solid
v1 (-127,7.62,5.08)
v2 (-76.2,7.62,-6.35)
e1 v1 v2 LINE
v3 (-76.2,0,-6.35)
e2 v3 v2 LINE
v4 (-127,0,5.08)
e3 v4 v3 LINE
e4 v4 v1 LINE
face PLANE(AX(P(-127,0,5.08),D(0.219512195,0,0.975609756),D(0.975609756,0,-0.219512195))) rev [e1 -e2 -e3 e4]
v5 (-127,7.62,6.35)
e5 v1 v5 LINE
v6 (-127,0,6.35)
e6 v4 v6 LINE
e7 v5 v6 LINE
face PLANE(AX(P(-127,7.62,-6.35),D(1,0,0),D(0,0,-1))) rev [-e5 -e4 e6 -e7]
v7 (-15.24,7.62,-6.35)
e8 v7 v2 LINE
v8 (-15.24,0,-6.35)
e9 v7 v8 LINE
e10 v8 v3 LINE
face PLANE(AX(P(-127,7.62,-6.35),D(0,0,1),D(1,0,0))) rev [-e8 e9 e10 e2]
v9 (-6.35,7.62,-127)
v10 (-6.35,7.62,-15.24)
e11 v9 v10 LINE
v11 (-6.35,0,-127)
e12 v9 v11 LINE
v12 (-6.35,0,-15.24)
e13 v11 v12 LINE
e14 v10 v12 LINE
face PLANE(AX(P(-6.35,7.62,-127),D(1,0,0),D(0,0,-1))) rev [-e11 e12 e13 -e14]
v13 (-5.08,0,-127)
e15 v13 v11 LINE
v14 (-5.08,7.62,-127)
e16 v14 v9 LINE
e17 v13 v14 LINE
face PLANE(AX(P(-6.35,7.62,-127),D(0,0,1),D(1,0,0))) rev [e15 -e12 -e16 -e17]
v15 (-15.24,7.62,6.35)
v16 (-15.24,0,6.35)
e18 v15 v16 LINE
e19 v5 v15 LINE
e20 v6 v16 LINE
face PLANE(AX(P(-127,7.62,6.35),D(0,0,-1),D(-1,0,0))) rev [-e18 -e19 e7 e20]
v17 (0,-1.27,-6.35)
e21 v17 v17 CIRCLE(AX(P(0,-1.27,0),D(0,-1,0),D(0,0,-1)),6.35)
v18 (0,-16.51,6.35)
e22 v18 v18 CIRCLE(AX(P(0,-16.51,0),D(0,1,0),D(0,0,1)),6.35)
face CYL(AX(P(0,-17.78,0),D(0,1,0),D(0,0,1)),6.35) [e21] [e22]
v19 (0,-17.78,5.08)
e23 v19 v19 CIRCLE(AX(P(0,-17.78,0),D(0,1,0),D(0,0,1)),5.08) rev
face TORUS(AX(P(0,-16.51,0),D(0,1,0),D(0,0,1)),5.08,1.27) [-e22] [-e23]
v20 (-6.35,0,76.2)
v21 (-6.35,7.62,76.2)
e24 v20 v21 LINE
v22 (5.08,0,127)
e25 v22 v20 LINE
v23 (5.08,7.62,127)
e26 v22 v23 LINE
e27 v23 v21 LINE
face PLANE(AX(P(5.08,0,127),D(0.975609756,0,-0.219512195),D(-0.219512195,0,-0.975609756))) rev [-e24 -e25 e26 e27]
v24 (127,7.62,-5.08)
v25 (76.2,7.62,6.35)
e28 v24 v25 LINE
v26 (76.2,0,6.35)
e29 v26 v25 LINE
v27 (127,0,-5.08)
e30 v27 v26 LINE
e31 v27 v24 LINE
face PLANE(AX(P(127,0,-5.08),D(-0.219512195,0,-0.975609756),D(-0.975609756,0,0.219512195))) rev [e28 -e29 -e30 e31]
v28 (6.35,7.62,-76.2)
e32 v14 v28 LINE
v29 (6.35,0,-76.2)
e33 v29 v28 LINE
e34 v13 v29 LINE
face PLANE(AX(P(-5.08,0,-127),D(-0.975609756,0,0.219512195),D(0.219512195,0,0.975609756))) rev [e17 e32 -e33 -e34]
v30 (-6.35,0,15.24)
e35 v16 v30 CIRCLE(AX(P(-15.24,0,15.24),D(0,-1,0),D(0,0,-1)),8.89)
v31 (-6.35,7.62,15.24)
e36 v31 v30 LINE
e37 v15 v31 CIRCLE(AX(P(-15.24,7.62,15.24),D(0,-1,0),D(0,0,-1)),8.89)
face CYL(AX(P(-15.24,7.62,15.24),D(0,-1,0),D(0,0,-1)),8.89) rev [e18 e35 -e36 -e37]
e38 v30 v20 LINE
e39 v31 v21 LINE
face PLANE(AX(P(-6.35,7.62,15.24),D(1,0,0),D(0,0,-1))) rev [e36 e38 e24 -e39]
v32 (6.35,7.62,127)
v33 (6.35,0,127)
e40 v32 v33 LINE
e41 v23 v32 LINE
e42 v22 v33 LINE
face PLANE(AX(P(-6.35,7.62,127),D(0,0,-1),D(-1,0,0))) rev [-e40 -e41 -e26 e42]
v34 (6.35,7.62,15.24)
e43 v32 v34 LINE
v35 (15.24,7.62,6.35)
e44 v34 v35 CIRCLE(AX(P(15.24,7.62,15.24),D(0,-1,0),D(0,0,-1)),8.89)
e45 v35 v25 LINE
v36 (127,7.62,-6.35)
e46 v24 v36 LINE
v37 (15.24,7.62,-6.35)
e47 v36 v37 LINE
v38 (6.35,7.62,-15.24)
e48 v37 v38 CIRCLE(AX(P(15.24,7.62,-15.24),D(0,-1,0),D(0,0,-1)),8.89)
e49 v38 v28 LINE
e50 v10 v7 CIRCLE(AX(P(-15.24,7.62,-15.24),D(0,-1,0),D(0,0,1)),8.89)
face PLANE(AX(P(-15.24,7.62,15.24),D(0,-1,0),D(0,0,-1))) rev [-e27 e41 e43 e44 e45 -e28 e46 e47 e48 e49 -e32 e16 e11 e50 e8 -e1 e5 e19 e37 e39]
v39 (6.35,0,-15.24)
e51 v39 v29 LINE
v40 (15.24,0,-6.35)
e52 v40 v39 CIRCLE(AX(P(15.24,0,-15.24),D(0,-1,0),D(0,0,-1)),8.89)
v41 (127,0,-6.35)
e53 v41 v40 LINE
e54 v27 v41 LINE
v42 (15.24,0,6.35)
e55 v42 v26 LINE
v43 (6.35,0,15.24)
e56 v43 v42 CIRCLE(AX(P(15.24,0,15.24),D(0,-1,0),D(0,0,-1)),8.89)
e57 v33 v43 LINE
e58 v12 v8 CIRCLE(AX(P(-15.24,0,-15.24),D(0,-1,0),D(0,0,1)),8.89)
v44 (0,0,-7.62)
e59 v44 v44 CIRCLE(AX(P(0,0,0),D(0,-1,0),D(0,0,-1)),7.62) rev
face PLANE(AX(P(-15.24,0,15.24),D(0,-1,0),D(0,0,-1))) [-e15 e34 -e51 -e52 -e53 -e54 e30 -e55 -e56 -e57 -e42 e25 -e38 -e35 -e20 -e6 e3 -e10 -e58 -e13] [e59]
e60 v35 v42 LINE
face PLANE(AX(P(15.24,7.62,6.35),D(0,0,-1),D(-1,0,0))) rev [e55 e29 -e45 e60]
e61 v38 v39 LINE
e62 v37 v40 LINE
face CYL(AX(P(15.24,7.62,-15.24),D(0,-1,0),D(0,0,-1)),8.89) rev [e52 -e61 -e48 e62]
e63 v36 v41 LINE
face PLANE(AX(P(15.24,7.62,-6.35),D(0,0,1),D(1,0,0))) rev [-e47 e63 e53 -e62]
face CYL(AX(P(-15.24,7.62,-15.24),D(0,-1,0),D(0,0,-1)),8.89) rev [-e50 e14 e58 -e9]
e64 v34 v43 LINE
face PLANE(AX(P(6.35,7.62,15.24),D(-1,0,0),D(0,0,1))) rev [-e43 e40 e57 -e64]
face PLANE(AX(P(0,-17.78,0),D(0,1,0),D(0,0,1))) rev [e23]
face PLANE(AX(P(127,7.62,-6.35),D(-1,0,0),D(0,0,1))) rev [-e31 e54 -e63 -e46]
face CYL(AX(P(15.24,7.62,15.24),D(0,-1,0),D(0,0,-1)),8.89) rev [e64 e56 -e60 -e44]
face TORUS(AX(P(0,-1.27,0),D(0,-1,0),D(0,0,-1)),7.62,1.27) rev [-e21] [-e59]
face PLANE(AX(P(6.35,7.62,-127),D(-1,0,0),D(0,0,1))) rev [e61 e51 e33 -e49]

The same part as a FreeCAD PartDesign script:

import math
import FreeCAD as App
import Part
import Sketcher
Q = App.Units.Quantity


def edges_at(feature, points):
    """Names of the edges that pass closest to the given points."""
    edges = feature.Shape.Edges
    near = lambda p: min(range(len(edges)), key=lambda i: edges[i].distToShape(Part.Vertex(*p))[0])
    return sorted({f"Edge{near(p) + 1}" for p in points})


def add_polygon(sketch, points):
    """Adds a closed chain of lines whose ends are joined by coincident constraints."""
    first, n = sketch.GeometryCount, len(points)
    for a, b in zip(points, points[1:] + points[:1]):
        sketch.addGeometry(Part.LineSegment(App.Vector(*a, 0), App.Vector(*b, 0)), False)
    for i in range(n):
        sketch.addConstraint(Sketcher.Constraint("Coincident", first + i, 2, first + (i + 1) % n, 1))

doc = App.newDocument("Part")
params = doc.addObject("Spreadsheet::Sheet", "Params")
for row, (alias, value) in enumerate([
    ("sketch1_radius", "0.35 in"),
    ("sketch1_width", "4.4 in"),
    ("sketch1_width2", "0.5 in"),
    ("pad1_length", "0.3 in"),
    ("sketch2_width", "2 in"),
    ("sketch2_width2", "0.45 in"),
    ("sketch3_diameter", "0.5 in"),
    ("pad2_length", "1 in"),
    ("fillet_radius", "0.05 in"),
    ("fillet2_radius", "0.05 in"),
], start=1):
    params.set(f"A{row}", alias)
    params.set(f"B{row}", "=" + value)
    params.setAlias(f"B{row}", alias)

body = doc.addObject("PartDesign::Body", "Body")

sketch1 = body.newObject("Sketcher::SketchObject", "Sketch")
sketch1.AttachmentSupport = (doc.getObject("XZ_Plane"), [""])
sketch1.MapMode = "FlatFace"
sketch1.addGeometry(Part.LineSegment(App.Vector(127, -6, 0), App.Vector(15, -6, 0)), False)
sketch1.addGeometry(Part.ArcOfCircle(Part.Circle(App.Vector(15, -15, 0), App.Vector(0, 0, 1), 9), math.radians(90), math.radians(180)), False)
sketch1.addGeometry(Part.LineSegment(App.Vector(6, -15, 0), App.Vector(6, -127, 0)), False)
sketch1.addGeometry(Part.LineSegment(App.Vector(6, -127, 0), App.Vector(-6, -127, 0)), False)
sketch1.addGeometry(Part.LineSegment(App.Vector(-6, -127, 0), App.Vector(-6, -15, 0)), False)
sketch1.addGeometry(Part.ArcOfCircle(Part.Circle(App.Vector(-15, -15, 0), App.Vector(0, 0, 1), 9), math.radians(0), math.radians(90)), False)
sketch1.addGeometry(Part.LineSegment(App.Vector(-15, -6, 0), App.Vector(-127, -6, 0)), False)
sketch1.addGeometry(Part.LineSegment(App.Vector(-127, -6, 0), App.Vector(-127, 6, 0)), False)
sketch1.addGeometry(Part.LineSegment(App.Vector(-127, 6, 0), App.Vector(-15, 6, 0)), False)
sketch1.addGeometry(Part.ArcOfCircle(Part.Circle(App.Vector(-15, 15, 0), App.Vector(0, 0, 1), 9), math.radians(-90), math.radians(0)), False)
sketch1.addGeometry(Part.LineSegment(App.Vector(-6, 15, 0), App.Vector(-6, 127, 0)), False)
sketch1.addGeometry(Part.LineSegment(App.Vector(-6, 127, 0), App.Vector(6, 127, 0)), False)
sketch1.addGeometry(Part.LineSegment(App.Vector(6, 127, 0), App.Vector(6, 15, 0)), False)
sketch1.addGeometry(Part.ArcOfCircle(Part.Circle(App.Vector(15, 15, 0), App.Vector(0, 0, 1), 9), math.radians(180), math.radians(270)), False)
sketch1.addGeometry(Part.LineSegment(App.Vector(15, 6, 0), App.Vector(127, 6, 0)), False)
sketch1.addGeometry(Part.LineSegment(App.Vector(127, 6, 0), App.Vector(127, -6, 0)), False)
sketch1.addConstraint(Sketcher.Constraint("Tangent", 0, 2, 1, 1))
sketch1.addConstraint(Sketcher.Constraint("Tangent", 1, 2, 2, 1))
sketch1.addConstraint(Sketcher.Constraint("Coincident", 2, 2, 3, 1))
sketch1.addConstraint(Sketcher.Constraint("Coincident", 3, 2, 4, 1))
sketch1.addConstraint(Sketcher.Constraint("Tangent", 4, 2, 5, 1))
sketch1.addConstraint(Sketcher.Constraint("Tangent", 5, 2, 6, 1))
sketch1.addConstraint(Sketcher.Constraint("Coincident", 6, 2, 7, 1))
sketch1.addConstraint(Sketcher.Constraint("Coincident", 7, 2, 8, 1))
sketch1.addConstraint(Sketcher.Constraint("Tangent", 8, 2, 9, 1))
sketch1.addConstraint(Sketcher.Constraint("Tangent", 9, 2, 10, 1))
sketch1.addConstraint(Sketcher.Constraint("Coincident", 10, 2, 11, 1))
sketch1.addConstraint(Sketcher.Constraint("Coincident", 11, 2, 12, 1))
sketch1.addConstraint(Sketcher.Constraint("Tangent", 12, 2, 13, 1))
sketch1.addConstraint(Sketcher.Constraint("Tangent", 13, 2, 14, 1))
sketch1.addConstraint(Sketcher.Constraint("Coincident", 14, 2, 15, 1))
sketch1.addConstraint(Sketcher.Constraint("Coincident", 15, 2, 0, 1))
sketch1.addConstraint(Sketcher.Constraint("Horizontal", 0))
sketch1.addConstraint(Sketcher.Constraint("Vertical", 2))
sketch1.addConstraint(Sketcher.Constraint("Horizontal", 3))
sketch1.addConstraint(Sketcher.Constraint("Vertical", 4))
sketch1.addConstraint(Sketcher.Constraint("Horizontal", 6))
sketch1.addConstraint(Sketcher.Constraint("Vertical", 7))
sketch1.addConstraint(Sketcher.Constraint("Horizontal", 8))
sketch1.addConstraint(Sketcher.Constraint("Vertical", 10))
sketch1.addConstraint(Sketcher.Constraint("Horizontal", 11))
sketch1.addConstraint(Sketcher.Constraint("Vertical", 12))
sketch1.addConstraint(Sketcher.Constraint("Horizontal", 14))
sketch1.addConstraint(Sketcher.Constraint("Vertical", 15))
sketch1.addConstraint(Sketcher.Constraint("Equal", 1, 5))
sketch1.addConstraint(Sketcher.Constraint("Equal", 5, 9))
sketch1.addConstraint(Sketcher.Constraint("Equal", 9, 13))
sketch1.addConstraint(Sketcher.Constraint("Symmetric", 1, 3, 9, 3, -1, 1))
sketch1.addConstraint(Sketcher.Constraint("Symmetric", 5, 3, 13, 3, -1, 1))
sketch1.addConstraint(Sketcher.Constraint("Symmetric", 1, 3, 5, 3, -2))
sketch1.addConstraint(Sketcher.Constraint("Equal", 0, 6))
sketch1.addConstraint(Sketcher.Constraint("Equal", 14, 2))
sketch1.addConstraint(Sketcher.Constraint("Equal", 11, 7))
sketch1.addConstraint(Sketcher.Constraint("Equal", 4, 10))
sketch1.addConstraint(Sketcher.Constraint("Radius", 1, Q("0.35 in")))
sketch1.addConstraint(Sketcher.Constraint("DistanceX", 0, 2, 0, 1, Q("4.4 in")))
sketch1.addConstraint(Sketcher.Constraint("DistanceX", 3, 2, 3, 1, Q("0.5 in")))
sketch1.setExpression("Constraints[38]", "Params.sketch1_radius")
sketch1.setExpression("Constraints[39]", "Params.sketch1_width")
sketch1.setExpression("Constraints[40]", "Params.sketch1_width2")
pad1 = body.newObject("PartDesign::Pad", "Pad")
pad1.Profile = sketch1
pad1.setExpression("Length", "Params.pad1_length")
pad1.Reversed = True

sketch2 = body.newObject("Sketcher::SketchObject", "Sketch001")
sketch2.AttachmentSupport = (doc.getObject("XZ_Plane"), [""])
sketch2.MapMode = "FlatFace"
sketch2.AttachmentOffset = App.Placement(App.Vector(0, 0, -0.3 * 25.4), App.Rotation())
add_polygon(sketch2, [(127, -5), (76, 6), (127, 6)])
add_polygon(sketch2, [(-5, -127), (6, -76), (6, -127)])
add_polygon(sketch2, [(5, 127), (-6, 76), (-6, 127)])
add_polygon(sketch2, [(-127, 5), (-76, -6), (-127, -6)])
sketch2.addConstraint(Sketcher.Constraint("Horizontal", 1))
sketch2.addConstraint(Sketcher.Constraint("Vertical", 2))
sketch2.addConstraint(Sketcher.Constraint("Vertical", 4))
sketch2.addConstraint(Sketcher.Constraint("Horizontal", 5))
sketch2.addConstraint(Sketcher.Constraint("Vertical", 7))
sketch2.addConstraint(Sketcher.Constraint("Horizontal", 8))
sketch2.addConstraint(Sketcher.Constraint("Horizontal", 10))
sketch2.addConstraint(Sketcher.Constraint("Vertical", 11))
sketch2.addConstraint(Sketcher.Constraint("Symmetric", 3, 2, 6, 2, -1, 1))
sketch2.addConstraint(Sketcher.Constraint("Symmetric", 5, 2, 8, 2, -1, 1))
sketch2.addConstraint(Sketcher.Constraint("Symmetric", 0, 2, 9, 2, -1, 1))
sketch2.addConstraint(Sketcher.Constraint("Symmetric", 2, 2, 11, 2, -1, 1))
sketch2.addConstraint(Sketcher.Constraint("Perpendicular", 0, 3))
sketch2.addConstraint(Sketcher.Constraint("Equal", 8, 2))
sketch2.addConstraint(Sketcher.Constraint("DistanceX", 1, 1, 1, 2, Q("2 in")))
sketch2.addConstraint(Sketcher.Constraint("DistanceX", -1, 1, 0, 2, Q("3 in")))
sketch2.addConstraint(Sketcher.Constraint("DistanceY", 3, 2, -1, 1, Q("3 in")))
sketch2.addConstraint(Sketcher.Constraint("DistanceX", 5, 2, 5, 1, Q("0.45 in")))
sketch2.addConstraint(Sketcher.Constraint("DistanceY", 2, 2, -1, 1, Q("0.2 in")))
sketch2.addConstraint(Sketcher.Constraint("DistanceX", 5, 2, -1, 1, Q("0.2 in")))
sketch2.setExpression("Constraints[26]", "Params.sketch2_width")
sketch2.setExpression("Constraints[29]", "Params.sketch2_width2")
pocket1 = body.newObject("PartDesign::Pocket", "Pocket")
pocket1.Profile = sketch2
pocket1.Type = "ThroughAll"
pocket1.Reversed = True

sketch3 = body.newObject("Sketcher::SketchObject", "Sketch002")
sketch3.AttachmentSupport = (doc.getObject("XZ_Plane"), [""])
sketch3.MapMode = "FlatFace"
sketch3.AttachmentOffset = App.Placement(App.Vector(0, 0, -0.3 * 25.4), App.Rotation())
sketch3.addGeometry(Part.Circle(App.Vector(0, 0, 0), App.Vector(0, 0, 1), 6), False)
sketch3.addConstraint(Sketcher.Constraint("Coincident", 0, 3, -1, 1))
sketch3.addConstraint(Sketcher.Constraint("Diameter", 0, Q("0.5 in")))
sketch3.setExpression("Constraints[1]", "Params.sketch3_diameter")
pad2 = body.newObject("PartDesign::Pad", "Pad001")
pad2.Profile = sketch3
pad2.setExpression("Length", "Params.pad2_length")
doc.recompute()

fillet = body.newObject("PartDesign::Fillet", "Fillet")
fillet.Base = (pad2, edges_at(pad2, [(0, 0, -6.35)]))
fillet.setExpression("Radius", "Params.fillet_radius")
doc.recompute()

fillet2 = body.newObject("PartDesign::Fillet", "Fillet001")
fillet2.Base = (fillet, edges_at(fillet, [(0, -17.78, -6.35)]))
fillet2.setExpression("Radius", "Params.fillet2_radius")

doc.recompute()
